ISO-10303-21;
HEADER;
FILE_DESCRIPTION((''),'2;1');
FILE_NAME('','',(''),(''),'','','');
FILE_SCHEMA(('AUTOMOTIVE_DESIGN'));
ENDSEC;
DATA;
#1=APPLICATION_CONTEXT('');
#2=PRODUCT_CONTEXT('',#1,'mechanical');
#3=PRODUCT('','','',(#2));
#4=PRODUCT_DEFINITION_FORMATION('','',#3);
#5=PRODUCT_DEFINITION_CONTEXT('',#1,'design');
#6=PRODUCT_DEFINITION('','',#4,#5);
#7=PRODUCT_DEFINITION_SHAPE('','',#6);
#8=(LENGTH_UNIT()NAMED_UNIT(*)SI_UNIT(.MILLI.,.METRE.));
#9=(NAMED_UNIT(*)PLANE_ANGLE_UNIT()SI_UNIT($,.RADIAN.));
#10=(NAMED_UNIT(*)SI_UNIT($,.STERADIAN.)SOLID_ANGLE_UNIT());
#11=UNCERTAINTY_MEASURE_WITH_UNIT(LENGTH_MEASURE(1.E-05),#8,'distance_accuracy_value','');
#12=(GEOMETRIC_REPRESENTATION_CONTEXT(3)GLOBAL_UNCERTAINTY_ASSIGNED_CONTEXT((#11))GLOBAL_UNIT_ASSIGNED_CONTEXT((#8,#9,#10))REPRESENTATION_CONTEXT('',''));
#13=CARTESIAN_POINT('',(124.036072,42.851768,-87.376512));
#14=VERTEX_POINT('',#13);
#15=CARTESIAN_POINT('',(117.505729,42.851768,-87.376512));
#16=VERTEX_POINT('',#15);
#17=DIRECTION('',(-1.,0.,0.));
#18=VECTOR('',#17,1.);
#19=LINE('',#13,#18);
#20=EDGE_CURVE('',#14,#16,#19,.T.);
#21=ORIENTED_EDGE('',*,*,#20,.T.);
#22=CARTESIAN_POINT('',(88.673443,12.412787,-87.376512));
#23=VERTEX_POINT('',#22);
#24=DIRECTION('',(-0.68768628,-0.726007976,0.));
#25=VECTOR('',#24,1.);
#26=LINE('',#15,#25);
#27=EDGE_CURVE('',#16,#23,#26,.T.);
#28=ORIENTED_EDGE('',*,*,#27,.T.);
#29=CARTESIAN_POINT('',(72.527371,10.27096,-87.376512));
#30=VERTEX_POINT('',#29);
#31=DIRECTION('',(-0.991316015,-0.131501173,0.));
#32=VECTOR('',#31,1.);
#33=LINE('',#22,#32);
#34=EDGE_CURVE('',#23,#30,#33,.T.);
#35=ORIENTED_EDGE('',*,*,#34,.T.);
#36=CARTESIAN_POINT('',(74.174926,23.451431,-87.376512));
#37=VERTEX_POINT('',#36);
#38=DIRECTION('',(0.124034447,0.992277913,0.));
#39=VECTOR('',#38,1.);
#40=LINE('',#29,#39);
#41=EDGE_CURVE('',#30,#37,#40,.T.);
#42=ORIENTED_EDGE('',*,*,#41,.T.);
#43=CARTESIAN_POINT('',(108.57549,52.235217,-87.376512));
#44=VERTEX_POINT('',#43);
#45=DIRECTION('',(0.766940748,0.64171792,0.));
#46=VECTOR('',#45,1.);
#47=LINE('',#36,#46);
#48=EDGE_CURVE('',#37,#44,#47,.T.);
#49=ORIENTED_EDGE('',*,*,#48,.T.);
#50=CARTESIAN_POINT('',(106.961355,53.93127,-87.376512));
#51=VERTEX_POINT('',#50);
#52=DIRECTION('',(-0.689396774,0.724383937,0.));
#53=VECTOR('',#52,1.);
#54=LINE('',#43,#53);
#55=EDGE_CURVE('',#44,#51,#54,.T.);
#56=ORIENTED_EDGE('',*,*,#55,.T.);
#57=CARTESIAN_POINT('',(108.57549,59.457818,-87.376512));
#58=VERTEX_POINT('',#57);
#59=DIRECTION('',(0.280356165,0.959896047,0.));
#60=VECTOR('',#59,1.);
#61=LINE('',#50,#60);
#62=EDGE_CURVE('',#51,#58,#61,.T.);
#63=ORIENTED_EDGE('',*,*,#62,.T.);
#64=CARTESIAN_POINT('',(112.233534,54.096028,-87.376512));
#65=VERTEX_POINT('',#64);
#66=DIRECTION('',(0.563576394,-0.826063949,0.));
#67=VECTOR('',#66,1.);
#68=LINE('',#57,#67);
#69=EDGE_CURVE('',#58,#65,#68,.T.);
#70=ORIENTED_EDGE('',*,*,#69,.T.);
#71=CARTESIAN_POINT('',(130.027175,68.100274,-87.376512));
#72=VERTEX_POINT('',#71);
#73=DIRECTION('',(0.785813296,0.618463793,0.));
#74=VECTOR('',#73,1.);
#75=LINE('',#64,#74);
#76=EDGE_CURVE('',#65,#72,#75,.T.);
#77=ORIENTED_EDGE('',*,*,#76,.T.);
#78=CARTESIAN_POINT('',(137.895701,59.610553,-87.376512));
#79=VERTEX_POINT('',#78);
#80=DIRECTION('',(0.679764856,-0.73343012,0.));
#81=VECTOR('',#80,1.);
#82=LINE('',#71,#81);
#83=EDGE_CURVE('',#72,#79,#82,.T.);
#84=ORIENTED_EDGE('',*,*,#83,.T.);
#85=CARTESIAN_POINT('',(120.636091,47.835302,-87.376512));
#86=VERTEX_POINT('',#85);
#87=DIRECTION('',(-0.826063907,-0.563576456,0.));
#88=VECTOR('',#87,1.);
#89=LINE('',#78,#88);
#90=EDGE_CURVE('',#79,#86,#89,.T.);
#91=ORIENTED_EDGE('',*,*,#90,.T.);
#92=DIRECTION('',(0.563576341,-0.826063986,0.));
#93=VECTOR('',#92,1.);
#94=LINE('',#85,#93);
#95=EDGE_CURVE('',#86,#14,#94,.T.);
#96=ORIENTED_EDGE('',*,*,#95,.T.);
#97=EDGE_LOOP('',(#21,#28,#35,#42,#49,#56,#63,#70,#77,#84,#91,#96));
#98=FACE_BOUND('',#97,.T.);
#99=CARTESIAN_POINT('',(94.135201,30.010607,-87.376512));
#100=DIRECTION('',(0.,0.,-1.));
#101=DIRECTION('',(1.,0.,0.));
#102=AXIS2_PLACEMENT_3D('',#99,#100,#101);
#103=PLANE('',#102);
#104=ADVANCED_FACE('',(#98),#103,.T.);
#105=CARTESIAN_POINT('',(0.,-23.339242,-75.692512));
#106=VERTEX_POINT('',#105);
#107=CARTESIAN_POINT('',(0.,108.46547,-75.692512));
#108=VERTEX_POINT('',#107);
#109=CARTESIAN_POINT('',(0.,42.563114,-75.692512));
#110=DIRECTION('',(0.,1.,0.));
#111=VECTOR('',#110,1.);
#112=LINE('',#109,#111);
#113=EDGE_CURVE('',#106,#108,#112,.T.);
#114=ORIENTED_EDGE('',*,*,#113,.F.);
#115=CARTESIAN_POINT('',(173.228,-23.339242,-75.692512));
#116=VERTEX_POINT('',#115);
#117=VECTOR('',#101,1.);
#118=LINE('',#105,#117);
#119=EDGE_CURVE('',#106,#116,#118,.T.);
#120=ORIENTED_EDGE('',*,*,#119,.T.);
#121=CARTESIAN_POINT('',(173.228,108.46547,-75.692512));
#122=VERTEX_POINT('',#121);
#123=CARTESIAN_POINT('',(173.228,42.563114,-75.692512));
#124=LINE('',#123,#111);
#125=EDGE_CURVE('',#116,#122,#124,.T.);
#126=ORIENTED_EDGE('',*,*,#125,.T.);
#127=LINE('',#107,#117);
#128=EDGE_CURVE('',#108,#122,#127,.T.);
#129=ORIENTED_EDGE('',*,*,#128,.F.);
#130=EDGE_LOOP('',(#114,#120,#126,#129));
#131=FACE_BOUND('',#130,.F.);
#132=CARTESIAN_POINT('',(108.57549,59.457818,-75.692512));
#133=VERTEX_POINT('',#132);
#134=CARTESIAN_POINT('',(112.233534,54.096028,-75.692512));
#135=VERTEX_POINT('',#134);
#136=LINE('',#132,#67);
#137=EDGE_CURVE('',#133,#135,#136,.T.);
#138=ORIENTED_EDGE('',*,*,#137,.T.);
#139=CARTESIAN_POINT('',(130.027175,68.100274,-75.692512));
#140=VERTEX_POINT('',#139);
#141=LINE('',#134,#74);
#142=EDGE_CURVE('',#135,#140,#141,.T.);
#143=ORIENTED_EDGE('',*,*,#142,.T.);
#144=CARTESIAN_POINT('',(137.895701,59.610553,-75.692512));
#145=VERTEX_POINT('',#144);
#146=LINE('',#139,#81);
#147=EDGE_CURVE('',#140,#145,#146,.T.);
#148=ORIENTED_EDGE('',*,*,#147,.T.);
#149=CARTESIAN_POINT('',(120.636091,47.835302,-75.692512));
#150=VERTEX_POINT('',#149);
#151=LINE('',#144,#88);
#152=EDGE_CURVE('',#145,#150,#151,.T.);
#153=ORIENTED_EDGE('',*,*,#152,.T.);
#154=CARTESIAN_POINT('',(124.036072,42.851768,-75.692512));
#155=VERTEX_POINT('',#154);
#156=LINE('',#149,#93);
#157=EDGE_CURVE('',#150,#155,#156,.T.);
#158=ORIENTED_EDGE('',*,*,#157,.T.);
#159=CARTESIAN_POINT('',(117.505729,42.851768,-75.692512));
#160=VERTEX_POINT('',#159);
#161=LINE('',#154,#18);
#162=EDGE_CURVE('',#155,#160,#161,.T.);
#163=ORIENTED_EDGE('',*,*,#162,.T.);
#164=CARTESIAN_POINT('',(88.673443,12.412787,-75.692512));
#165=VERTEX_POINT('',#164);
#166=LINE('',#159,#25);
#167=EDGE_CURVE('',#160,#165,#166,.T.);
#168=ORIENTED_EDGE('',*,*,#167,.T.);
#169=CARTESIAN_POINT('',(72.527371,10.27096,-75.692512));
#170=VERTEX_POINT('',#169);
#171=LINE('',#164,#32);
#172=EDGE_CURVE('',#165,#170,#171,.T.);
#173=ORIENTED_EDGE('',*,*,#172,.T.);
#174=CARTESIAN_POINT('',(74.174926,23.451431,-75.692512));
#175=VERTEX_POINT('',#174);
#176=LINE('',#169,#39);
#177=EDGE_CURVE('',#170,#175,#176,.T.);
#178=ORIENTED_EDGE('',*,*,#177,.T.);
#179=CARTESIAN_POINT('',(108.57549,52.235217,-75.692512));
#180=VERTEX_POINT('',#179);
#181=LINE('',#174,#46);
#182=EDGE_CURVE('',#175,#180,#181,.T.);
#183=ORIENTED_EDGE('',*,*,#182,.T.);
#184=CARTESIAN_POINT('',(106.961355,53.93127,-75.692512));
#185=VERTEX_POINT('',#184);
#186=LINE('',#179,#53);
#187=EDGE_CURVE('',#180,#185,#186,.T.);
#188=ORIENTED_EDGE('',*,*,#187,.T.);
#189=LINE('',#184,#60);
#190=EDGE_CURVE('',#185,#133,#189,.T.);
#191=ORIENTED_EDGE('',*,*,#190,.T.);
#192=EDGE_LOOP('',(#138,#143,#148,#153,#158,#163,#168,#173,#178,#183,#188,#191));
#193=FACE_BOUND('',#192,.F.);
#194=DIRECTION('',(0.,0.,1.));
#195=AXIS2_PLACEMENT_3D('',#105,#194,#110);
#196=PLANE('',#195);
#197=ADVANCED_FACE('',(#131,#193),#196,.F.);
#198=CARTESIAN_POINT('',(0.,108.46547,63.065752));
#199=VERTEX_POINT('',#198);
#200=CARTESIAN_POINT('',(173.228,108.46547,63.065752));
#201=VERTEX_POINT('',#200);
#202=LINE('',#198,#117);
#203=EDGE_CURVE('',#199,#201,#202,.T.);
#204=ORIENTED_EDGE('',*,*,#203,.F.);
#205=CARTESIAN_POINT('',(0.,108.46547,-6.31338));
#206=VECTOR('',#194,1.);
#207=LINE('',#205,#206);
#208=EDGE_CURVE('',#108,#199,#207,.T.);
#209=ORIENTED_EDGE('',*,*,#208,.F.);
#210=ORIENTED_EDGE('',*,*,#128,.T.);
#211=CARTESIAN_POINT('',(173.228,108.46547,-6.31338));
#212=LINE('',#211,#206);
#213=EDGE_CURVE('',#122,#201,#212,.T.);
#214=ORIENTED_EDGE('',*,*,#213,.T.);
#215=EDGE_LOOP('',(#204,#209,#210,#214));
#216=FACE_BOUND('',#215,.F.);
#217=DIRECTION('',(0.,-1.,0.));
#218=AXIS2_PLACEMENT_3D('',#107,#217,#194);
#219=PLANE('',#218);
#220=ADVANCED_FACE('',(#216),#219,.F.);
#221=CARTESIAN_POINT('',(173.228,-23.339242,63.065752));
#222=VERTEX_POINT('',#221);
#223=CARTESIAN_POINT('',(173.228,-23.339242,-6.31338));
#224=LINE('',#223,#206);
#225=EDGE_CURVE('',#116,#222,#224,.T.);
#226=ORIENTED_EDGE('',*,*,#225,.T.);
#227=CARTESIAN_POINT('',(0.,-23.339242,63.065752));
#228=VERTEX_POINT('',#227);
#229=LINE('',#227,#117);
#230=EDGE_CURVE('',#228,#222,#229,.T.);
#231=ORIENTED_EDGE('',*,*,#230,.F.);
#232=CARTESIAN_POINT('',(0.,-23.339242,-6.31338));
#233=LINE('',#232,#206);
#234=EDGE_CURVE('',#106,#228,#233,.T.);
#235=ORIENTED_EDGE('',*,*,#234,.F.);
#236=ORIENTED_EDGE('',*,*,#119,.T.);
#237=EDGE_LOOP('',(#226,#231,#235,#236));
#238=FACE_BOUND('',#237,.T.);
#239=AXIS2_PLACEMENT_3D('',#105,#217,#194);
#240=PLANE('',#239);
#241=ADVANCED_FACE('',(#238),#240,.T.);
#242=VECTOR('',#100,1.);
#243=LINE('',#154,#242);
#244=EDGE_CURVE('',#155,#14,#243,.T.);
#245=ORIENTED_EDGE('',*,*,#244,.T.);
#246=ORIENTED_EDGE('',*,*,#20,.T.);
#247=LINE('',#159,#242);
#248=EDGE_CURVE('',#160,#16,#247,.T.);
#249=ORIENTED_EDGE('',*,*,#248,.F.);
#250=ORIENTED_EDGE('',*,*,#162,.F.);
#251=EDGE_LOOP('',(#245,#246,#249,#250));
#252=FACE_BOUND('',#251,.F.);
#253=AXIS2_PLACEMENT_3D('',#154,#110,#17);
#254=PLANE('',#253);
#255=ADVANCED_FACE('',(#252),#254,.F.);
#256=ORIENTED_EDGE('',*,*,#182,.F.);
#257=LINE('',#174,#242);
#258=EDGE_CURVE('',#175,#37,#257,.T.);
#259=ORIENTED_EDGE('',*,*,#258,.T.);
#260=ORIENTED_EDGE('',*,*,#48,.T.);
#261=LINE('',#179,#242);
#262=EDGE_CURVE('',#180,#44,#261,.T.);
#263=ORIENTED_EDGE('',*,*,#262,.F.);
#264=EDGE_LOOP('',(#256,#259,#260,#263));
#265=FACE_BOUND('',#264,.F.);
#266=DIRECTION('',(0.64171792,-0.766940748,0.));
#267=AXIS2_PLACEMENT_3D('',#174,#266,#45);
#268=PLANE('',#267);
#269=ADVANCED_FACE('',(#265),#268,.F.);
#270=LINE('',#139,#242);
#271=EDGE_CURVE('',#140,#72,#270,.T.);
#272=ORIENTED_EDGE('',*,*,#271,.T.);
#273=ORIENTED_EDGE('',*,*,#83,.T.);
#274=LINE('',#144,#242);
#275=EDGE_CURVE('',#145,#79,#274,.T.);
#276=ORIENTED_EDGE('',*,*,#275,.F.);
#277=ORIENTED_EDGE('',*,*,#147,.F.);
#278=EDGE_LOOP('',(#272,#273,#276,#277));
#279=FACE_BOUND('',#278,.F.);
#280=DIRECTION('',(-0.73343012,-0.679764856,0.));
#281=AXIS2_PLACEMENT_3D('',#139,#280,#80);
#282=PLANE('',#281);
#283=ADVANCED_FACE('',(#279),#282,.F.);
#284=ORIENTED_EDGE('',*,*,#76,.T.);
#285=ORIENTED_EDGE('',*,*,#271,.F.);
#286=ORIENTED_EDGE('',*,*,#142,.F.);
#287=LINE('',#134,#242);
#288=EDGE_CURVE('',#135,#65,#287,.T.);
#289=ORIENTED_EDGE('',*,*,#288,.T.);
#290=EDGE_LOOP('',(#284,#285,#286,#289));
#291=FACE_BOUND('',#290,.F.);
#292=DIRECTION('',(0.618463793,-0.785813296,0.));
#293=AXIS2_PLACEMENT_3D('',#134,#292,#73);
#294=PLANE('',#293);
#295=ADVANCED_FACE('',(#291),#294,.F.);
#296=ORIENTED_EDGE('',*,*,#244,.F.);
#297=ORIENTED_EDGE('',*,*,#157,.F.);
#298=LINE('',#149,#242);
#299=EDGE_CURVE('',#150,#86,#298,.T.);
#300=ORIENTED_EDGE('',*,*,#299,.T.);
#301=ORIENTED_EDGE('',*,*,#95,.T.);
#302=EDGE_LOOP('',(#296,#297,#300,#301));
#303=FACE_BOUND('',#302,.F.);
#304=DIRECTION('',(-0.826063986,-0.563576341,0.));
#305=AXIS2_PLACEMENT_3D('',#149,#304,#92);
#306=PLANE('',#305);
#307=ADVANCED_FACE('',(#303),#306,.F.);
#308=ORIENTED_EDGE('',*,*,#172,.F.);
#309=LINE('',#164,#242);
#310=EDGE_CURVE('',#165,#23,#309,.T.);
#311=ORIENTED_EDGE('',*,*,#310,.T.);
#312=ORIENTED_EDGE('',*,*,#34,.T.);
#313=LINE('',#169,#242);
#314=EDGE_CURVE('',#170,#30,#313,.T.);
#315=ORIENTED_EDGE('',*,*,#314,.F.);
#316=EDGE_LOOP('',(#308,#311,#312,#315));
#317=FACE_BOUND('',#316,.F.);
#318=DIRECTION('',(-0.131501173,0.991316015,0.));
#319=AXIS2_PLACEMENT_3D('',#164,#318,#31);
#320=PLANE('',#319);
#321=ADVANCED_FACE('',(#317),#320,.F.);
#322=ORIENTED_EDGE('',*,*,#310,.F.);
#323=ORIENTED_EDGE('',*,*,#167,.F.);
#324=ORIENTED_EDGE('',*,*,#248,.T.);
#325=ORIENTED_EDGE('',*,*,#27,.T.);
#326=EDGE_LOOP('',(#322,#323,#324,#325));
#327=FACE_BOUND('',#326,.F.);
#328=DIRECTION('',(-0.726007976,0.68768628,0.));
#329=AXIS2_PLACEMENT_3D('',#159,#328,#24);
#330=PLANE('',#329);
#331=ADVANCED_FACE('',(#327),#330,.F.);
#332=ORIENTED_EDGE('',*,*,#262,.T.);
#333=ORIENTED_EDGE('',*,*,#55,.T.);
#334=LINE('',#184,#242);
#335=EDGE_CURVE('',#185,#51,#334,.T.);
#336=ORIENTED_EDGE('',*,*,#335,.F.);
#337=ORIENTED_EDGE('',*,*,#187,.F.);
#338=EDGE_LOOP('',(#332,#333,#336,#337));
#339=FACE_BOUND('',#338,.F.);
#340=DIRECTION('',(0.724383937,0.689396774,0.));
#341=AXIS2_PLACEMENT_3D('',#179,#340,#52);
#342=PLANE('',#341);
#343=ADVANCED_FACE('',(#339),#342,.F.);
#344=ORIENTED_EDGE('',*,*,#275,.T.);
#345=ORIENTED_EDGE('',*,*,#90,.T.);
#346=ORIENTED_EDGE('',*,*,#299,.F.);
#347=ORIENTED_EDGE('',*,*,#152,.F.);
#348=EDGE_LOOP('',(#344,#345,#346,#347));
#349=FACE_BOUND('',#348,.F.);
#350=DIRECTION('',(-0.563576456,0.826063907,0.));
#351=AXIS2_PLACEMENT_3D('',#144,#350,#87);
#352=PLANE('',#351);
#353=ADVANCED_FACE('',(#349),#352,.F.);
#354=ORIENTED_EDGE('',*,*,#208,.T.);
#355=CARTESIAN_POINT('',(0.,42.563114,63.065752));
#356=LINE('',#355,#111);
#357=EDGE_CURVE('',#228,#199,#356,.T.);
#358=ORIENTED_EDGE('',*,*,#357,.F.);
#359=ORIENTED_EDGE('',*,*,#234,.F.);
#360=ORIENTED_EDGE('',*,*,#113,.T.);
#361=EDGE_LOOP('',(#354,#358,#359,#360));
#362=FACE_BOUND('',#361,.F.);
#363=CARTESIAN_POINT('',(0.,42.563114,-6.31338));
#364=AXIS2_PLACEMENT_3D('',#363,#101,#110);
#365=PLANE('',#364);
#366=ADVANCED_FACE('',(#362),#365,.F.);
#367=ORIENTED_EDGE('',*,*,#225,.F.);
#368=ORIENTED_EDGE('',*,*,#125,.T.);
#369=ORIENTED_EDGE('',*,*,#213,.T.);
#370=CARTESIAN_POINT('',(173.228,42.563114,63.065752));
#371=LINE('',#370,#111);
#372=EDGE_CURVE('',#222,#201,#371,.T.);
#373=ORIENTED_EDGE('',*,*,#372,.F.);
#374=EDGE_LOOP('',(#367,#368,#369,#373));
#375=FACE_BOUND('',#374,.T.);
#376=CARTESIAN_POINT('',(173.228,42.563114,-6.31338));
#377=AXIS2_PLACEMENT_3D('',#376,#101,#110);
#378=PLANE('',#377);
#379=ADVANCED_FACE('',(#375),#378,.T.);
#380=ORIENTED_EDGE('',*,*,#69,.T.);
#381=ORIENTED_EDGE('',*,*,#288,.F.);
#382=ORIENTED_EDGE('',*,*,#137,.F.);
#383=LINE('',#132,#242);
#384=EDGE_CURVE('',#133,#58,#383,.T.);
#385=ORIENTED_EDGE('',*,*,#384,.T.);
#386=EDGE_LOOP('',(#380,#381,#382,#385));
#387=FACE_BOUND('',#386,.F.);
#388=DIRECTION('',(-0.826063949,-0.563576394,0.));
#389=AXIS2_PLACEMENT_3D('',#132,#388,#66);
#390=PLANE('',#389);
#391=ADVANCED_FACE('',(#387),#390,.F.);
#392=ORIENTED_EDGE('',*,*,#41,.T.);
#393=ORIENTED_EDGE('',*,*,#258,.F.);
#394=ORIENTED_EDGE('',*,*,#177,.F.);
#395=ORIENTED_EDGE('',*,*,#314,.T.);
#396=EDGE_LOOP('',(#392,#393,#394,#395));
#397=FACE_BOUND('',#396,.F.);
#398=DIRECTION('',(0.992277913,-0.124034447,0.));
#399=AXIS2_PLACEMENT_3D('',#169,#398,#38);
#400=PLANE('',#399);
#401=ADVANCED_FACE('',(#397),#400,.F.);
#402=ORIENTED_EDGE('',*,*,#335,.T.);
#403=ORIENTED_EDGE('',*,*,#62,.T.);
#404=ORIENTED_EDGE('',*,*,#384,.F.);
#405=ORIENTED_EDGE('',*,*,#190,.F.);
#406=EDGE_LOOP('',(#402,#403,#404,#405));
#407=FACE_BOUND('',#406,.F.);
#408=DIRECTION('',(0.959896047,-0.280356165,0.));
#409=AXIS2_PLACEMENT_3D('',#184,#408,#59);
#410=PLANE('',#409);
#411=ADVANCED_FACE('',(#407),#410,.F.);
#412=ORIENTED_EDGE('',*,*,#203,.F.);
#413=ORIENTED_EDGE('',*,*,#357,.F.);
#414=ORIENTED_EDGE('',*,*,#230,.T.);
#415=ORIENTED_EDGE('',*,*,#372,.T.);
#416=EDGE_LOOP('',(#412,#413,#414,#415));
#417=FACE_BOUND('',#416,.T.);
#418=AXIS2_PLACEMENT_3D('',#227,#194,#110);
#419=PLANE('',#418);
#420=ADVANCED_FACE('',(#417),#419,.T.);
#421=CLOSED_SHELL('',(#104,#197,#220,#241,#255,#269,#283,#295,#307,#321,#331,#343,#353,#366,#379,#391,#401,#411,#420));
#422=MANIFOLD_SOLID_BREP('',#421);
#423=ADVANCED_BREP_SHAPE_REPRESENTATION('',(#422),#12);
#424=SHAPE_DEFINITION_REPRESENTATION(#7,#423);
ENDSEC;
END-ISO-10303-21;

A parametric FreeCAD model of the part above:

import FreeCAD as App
import Part
import Sketcher

V = App.Vector
Q = App.Units.Quantity


def add_polygon(sketch, points):
    """Adds a closed chain of lines whose ends are joined by coincident constraints."""
    first, n = sketch.GeometryCount, len(points)
    for a, b in zip(points, points[1:] + points[:1]):
        sketch.addGeometry(Part.LineSegment(App.Vector(*a, 0), App.Vector(*b, 0)), False)
    for i in range(n):
        sketch.addConstraint(Sketcher.Constraint("Coincident", first + i, 2, first + (i + 1) % n, 1))

doc = App.newDocument("Part")
body = doc.addObject("PartDesign::Body", "Body")

# Sketch on YZ plane
sketch1 = body.newObject("Sketcher::SketchObject", "Sketch")
sketch1.AttachmentSupport = (doc.getObject("YZ_Plane"), [""])
sketch1.MapMode = "FlatFace"
add_polygon(sketch1, [(-23, 63), (-23, -76), (108, -76), (108, 63)])  # lines 0-3
sketch1.addConstraint([
    Sketcher.Constraint("Vertical", 0),
    Sketcher.Constraint("Horizontal", 1),
    Sketcher.Constraint("Vertical", 2),
    Sketcher.Constraint("Horizontal", 3),
    Sketcher.Constraint("DistanceX", 1, 1, 1, 2, 131.804712),
    Sketcher.Constraint("DistanceY", 0, 2, 0, 1, 138.758264),
    Sketcher.Constraint("DistanceX", 0, 2, -1, 1, 23.339242),
    Sketcher.Constraint("DistanceY", 0, 2, -1, 1, 75.692512),
])
pad1 = body.newObject("PartDesign::Pad", "Pad")
pad1.Profile = sketch1
pad1.Length = Q("6.82 in")

# Sketch on XY plane
sketch2 = body.newObject("Sketcher::SketchObject", "Sketch001")
sketch2.AttachmentSupport = (doc.getObject("XY_Plane"), [""])
sketch2.MapMode = "FlatFace"
sketch2.AttachmentOffset = App.Placement(V(0, 0, -75.692512), App.Rotation())
add_polygon(sketch2, [(117.5, 42.9), (88.7, 12.4), (72.5, 10.3), (74.2, 23.5), (108.6, 52.2), (107, 53.9), (108.6, 59.5), (112.2, 54.1), (130, 68.1), (137.9, 59.6), (120.6, 47.8), (124, 42.9)])  # lines 0-11
sketch2.addConstraint([
    Sketcher.Constraint("Horizontal", 11),
    Sketcher.Constraint("Perpendicular", 6, 9),
    Sketcher.Constraint("Perpendicular", 9, 10),
    Sketcher.Constraint("Vertical", 3, 2, 5, 2),
    Sketcher.Constraint("DistanceX", 11, 2, 11, 1, Q("0.2571001 in")),
    Sketcher.Constraint("Distance", 7, 22.643599),
    Sketcher.Constraint("DistanceX", -1, 1, 8, 2, 137.895701),
    Sketcher.Constraint("DistanceY", 3, 2, 5, 2, 7.222601),
    Sketcher.Constraint("DistanceX", 3, 2, 9, 2, 12.060601),
    Sketcher.Constraint("DistanceY", 10, 2, 4, 2, 11.079502),
    Sketcher.Constraint("Distance", 0, 41.92651),
    Sketcher.Constraint("Distance", 6, 6.490769),
    Sketcher.Constraint("DistanceX", -1, 1, 1, 2, 72.527371),
    Sketcher.Constraint("DistanceY", -1, 1, 1, 2, 10.27096),
    Sketcher.Constraint("DistanceY", -1, 1, 2, 2, 23.451431),
    Sketcher.Constraint("DistanceX", -1, 1, 3, 2, 108.57549),
    Sketcher.Constraint("DistanceY", -1, 1, 4, 2, 53.93127),
    Sketcher.Constraint("DistanceY", -1, 1, 5, 2, 59.457818),
    Sketcher.Constraint("DistanceX", -1, 1, 11, 2, 117.505729),
    Sketcher.Constraint("DistanceY", 0, 2, 3, 2, 39.82243),
    Sketcher.Constraint("DistanceX", 2, 2, 4, 2, 32.786429),
    Sketcher.Constraint("DistanceX", 0, 2, 4, 2, 18.287912),
    Sketcher.Constraint("DistanceY", 3, 2, 6, 2, 1.860811),
    Sketcher.Constraint("DistanceX", 6, 2, 7, 2, 17.793641),
])
pad2 = body.newObject("PartDesign::Pad", "Pad001")
pad2.Profile = sketch2
pad2.Length = Q("0.46 in")
pad2.Reversed = True

doc.recompute()
